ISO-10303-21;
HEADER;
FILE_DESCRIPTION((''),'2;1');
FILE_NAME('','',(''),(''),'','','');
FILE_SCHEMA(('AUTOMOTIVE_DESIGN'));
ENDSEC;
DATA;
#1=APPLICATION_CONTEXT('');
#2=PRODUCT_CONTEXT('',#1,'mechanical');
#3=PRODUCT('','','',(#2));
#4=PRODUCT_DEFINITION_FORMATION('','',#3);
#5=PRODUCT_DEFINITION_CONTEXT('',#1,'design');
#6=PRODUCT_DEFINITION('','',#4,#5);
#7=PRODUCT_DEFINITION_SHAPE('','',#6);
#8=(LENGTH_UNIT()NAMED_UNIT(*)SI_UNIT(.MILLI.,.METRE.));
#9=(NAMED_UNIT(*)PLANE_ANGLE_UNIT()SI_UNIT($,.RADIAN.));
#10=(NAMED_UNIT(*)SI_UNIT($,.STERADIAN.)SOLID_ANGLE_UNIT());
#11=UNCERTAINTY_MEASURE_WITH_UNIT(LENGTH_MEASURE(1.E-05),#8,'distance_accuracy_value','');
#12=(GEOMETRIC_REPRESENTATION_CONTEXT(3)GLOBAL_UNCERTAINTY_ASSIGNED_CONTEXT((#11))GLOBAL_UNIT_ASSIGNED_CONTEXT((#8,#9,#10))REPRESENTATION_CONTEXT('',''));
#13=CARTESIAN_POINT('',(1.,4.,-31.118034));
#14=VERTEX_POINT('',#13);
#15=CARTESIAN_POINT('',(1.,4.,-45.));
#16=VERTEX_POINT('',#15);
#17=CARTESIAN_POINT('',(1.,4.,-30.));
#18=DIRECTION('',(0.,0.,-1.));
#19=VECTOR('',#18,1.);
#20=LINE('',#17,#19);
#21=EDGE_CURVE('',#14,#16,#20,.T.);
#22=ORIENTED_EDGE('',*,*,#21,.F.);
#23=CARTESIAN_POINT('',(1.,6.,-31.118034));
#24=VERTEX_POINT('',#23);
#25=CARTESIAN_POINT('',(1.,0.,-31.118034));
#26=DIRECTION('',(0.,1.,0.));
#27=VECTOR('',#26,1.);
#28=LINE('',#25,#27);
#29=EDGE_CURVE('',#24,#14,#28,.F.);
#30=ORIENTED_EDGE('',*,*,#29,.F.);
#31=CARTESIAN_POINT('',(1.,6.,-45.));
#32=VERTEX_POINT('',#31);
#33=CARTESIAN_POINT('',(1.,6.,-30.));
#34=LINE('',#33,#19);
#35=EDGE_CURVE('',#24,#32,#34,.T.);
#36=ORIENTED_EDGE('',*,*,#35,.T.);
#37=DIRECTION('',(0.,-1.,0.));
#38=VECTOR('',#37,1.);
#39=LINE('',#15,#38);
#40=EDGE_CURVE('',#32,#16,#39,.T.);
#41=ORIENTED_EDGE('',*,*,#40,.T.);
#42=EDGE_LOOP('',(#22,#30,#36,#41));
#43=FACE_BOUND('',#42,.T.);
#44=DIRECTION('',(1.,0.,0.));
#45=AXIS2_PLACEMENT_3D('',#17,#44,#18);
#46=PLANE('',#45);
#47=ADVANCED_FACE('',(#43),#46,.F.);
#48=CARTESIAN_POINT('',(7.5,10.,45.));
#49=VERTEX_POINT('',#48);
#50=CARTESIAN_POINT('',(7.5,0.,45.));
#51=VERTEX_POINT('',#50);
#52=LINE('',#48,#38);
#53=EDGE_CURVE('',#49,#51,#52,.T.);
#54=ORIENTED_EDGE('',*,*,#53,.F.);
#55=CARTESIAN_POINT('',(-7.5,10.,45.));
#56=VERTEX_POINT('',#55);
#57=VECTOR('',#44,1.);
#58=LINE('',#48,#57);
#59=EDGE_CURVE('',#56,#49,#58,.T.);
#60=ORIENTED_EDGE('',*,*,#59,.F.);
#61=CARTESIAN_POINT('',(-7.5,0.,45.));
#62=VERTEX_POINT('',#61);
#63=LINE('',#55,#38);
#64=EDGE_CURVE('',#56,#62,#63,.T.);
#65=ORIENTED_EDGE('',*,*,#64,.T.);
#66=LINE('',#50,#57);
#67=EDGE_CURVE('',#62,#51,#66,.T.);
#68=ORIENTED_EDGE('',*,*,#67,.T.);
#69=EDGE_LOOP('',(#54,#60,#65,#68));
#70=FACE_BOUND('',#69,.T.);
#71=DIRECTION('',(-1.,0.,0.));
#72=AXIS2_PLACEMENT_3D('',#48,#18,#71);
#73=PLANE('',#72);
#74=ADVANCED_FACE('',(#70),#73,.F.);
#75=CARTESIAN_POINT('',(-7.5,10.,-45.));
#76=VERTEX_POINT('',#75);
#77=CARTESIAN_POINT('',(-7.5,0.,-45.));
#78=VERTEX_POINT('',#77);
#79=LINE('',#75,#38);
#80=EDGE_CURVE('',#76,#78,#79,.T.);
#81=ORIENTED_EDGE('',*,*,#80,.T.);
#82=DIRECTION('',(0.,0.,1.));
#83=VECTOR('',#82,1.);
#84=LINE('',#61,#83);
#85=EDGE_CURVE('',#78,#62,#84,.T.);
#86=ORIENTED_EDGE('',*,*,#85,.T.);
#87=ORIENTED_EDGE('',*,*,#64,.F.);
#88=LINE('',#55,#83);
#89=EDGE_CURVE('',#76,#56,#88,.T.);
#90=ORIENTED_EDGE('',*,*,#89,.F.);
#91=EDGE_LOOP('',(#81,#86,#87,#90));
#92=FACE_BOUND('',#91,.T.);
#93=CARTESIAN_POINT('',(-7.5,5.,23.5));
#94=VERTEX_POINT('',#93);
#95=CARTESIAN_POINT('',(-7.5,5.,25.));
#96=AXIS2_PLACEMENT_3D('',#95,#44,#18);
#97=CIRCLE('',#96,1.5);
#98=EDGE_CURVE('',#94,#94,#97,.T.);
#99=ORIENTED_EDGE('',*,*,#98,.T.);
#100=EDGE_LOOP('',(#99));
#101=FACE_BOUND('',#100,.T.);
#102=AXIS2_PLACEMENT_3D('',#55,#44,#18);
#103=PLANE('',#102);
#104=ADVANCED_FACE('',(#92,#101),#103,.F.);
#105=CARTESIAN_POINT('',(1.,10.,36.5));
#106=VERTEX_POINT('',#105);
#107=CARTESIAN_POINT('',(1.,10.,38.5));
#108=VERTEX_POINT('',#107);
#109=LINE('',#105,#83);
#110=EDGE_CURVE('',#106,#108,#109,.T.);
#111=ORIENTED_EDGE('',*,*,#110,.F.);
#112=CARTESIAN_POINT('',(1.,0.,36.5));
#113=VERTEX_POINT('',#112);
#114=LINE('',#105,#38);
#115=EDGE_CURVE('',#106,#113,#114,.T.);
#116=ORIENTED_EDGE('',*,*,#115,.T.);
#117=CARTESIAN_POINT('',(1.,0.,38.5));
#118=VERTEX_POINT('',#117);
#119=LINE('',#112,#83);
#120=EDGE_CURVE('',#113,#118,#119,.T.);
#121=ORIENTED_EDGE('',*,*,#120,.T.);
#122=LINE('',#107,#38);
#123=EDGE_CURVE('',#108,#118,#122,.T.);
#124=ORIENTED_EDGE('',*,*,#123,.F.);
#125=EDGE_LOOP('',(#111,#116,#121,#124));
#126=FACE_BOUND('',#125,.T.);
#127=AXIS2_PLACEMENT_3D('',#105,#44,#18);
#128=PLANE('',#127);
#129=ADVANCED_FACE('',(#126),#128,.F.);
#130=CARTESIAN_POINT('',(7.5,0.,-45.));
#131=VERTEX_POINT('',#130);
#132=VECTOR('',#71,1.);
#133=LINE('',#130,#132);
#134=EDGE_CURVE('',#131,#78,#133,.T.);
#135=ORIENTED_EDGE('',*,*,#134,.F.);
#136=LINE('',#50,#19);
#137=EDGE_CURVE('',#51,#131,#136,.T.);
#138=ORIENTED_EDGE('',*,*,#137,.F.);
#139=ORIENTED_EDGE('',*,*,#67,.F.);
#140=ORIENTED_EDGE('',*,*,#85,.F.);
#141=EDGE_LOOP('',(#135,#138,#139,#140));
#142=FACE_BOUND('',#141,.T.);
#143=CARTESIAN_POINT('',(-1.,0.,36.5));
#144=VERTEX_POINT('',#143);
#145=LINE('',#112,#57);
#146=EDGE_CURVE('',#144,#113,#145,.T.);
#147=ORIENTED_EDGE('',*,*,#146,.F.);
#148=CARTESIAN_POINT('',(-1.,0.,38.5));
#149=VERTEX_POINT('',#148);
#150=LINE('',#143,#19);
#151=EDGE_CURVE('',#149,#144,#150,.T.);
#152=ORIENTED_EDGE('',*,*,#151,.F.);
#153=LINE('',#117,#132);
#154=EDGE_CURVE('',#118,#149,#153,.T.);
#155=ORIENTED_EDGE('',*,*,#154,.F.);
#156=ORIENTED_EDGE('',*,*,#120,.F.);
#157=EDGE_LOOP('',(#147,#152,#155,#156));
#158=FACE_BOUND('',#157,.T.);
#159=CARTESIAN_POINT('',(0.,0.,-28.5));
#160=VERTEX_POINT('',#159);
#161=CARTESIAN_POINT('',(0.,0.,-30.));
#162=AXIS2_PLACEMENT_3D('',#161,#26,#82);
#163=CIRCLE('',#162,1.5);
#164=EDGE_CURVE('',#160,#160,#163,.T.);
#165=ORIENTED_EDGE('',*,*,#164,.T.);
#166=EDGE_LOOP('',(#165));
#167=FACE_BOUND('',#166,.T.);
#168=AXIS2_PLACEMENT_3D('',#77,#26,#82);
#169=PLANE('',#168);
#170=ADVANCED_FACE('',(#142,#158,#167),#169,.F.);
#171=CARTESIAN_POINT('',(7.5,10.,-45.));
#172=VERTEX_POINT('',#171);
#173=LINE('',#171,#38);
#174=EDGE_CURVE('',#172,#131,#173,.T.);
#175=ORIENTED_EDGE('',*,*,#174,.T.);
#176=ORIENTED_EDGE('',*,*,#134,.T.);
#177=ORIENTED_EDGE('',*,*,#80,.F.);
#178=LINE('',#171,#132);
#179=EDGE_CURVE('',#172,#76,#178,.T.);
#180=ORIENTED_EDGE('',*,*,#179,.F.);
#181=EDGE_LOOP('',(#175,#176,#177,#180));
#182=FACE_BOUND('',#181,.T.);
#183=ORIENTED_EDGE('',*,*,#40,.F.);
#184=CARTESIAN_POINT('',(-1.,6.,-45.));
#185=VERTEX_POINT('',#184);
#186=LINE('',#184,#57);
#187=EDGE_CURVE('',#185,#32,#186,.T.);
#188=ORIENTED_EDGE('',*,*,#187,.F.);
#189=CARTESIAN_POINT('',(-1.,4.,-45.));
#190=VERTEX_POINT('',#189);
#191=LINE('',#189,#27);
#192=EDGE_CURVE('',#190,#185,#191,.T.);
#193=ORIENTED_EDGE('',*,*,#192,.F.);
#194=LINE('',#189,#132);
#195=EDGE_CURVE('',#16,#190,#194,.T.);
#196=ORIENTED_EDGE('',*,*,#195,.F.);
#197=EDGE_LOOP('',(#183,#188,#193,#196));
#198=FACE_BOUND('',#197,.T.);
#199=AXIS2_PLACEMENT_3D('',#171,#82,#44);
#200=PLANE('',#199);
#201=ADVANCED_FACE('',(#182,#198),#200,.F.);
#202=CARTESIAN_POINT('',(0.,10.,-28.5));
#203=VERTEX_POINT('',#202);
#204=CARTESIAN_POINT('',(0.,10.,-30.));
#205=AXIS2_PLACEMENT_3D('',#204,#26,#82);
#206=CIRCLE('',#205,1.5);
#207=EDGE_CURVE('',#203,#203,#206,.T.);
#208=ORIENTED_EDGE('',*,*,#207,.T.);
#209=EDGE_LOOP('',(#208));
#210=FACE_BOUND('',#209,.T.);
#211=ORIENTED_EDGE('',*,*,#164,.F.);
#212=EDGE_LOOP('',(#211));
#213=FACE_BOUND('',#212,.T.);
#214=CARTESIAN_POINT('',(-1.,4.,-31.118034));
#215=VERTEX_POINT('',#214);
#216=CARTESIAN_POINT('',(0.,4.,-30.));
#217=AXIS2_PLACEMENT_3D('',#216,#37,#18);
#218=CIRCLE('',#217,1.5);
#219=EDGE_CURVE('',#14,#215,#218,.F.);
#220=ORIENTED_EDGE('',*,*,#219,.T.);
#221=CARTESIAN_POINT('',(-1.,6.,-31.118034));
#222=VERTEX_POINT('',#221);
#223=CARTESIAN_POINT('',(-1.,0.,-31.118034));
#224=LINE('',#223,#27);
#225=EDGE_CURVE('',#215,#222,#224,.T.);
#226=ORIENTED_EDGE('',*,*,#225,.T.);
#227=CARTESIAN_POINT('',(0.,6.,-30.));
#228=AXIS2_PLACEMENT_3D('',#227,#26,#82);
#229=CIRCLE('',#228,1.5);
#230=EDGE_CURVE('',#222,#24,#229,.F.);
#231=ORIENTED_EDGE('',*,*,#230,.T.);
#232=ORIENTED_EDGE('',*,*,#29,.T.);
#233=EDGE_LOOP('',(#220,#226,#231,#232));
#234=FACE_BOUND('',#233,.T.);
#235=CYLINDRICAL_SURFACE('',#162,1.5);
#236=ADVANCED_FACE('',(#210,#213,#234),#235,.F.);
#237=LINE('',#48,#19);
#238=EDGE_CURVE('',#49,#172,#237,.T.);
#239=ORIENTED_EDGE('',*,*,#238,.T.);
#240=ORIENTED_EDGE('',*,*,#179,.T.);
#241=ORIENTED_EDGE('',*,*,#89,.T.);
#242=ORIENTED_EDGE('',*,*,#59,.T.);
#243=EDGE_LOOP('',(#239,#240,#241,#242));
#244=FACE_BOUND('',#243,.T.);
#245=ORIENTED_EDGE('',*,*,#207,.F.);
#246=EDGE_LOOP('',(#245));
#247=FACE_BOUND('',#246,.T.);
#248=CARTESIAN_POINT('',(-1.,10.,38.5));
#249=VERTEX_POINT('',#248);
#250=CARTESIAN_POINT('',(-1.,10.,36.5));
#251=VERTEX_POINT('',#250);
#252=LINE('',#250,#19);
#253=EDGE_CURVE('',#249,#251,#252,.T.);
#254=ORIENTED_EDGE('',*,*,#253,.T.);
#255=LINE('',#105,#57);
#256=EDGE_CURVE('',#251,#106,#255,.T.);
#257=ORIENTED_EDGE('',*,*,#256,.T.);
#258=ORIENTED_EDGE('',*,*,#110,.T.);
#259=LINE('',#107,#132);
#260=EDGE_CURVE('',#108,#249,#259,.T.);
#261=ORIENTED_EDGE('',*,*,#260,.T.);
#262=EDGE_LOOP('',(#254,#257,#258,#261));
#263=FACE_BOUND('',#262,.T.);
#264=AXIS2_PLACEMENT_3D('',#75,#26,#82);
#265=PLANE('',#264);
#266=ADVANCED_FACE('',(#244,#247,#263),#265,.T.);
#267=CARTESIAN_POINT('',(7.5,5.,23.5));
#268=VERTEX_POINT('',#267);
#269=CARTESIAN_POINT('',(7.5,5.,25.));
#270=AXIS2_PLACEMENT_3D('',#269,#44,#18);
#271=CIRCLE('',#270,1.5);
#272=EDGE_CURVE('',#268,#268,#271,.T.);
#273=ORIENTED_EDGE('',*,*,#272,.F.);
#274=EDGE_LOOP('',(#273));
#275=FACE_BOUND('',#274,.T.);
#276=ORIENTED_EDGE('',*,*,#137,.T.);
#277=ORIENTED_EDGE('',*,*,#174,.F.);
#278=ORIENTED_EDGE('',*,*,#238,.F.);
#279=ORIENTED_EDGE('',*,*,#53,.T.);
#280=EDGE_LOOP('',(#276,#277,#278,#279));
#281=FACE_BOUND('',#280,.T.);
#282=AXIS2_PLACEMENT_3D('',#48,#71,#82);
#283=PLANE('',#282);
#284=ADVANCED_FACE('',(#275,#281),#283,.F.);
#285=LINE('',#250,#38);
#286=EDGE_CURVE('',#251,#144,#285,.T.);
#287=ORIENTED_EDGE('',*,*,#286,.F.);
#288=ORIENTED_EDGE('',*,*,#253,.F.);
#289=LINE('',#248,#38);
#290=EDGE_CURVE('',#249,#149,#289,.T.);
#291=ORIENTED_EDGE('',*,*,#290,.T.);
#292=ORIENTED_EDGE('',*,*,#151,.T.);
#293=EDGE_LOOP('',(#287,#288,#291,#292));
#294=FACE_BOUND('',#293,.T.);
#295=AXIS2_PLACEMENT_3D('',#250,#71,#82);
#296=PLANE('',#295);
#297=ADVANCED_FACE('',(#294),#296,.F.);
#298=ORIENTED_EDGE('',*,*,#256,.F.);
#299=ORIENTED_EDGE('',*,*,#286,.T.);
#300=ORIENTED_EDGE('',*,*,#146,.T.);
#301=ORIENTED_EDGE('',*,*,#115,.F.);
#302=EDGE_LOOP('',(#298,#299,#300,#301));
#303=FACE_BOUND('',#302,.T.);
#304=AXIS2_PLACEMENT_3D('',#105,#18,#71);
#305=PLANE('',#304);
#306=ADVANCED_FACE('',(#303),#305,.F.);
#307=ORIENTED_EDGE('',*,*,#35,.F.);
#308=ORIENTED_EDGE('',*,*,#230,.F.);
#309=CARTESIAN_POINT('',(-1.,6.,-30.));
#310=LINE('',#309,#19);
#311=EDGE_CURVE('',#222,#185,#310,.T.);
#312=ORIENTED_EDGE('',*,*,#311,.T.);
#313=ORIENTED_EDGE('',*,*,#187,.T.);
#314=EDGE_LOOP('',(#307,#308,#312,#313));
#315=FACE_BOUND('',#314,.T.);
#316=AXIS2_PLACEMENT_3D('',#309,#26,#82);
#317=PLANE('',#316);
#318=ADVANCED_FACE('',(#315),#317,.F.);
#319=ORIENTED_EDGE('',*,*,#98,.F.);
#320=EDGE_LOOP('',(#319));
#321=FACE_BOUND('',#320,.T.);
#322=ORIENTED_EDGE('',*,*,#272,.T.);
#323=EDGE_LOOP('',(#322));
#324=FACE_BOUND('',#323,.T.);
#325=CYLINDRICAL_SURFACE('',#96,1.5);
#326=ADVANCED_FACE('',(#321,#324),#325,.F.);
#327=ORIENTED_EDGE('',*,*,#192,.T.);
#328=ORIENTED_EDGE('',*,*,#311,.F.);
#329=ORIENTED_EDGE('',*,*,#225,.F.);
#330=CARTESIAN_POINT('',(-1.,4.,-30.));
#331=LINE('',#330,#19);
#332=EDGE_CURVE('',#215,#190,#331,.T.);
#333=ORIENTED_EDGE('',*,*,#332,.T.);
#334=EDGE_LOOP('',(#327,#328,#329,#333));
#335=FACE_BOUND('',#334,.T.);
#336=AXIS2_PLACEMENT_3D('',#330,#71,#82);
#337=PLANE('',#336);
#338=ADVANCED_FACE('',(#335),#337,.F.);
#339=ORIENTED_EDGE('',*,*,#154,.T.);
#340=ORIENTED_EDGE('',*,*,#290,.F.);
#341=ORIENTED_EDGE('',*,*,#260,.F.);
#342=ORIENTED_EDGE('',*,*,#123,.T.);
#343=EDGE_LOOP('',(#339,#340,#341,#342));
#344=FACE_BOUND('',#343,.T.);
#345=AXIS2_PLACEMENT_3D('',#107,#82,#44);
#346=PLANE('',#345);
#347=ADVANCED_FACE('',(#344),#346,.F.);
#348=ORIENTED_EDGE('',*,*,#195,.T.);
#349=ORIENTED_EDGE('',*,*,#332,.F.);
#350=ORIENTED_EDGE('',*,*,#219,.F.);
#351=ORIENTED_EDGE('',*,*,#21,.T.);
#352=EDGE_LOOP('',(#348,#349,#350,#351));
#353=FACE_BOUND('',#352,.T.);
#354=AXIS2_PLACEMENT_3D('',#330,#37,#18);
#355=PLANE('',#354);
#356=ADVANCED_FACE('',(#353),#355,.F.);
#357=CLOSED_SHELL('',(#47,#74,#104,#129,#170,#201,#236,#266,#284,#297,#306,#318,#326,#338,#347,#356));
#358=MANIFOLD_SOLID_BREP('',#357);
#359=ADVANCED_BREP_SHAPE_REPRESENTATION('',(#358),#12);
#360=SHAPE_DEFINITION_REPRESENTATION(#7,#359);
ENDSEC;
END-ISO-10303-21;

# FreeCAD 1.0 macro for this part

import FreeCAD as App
import Part
import Sketcher

V = App.Vector
Q = App.Units.Quantity

doc = App.newDocument("Part")
params = doc.addObject("Spreadsheet::Sheet", "Params")
for row, (alias, value) in enumerate([
    ("sketch1_width", "15 mm"),
    ("sketch1_height", "90 mm"),
    ("pad1_length", "10 mm"),
    ("sketch2_diameter", "3 mm"),
    ("sketch3_width", "2 mm"),
    ("sketch4_diameter", "3 mm"),
    ("sketch5_width", "2 mm"),
    ("pocket4_length", "15 mm"),
], start=1):
    params.set(f"A{row}", alias)
    params.set(f"B{row}", "=" + value)
    params.setAlias(f"B{row}", alias)

body = doc.addObject("PartDesign::Body", "Body")

sketch1 = body.newObject("Sketcher::SketchObject", "Sketch")
sketch1.AttachmentSupport = (doc.getObject("XZ_Plane"), [""])
sketch1.MapMode = "FlatFace"
sketch1.addGeometry(Part.LineSegment(V(-8, -45, 0), V(-8, 45, 0)), False)
sketch1.addGeometry(Part.LineSegment(V(-8, 45, 0), V(8, 45, 0)), False)
sketch1.addGeometry(Part.LineSegment(V(8, 45, 0), V(8, -45, 0)), False)
sketch1.addGeometry(Part.LineSegment(V(8, -45, 0), V(-8, -45, 0)), False)
sketch1.addConstraint(Sketcher.Constraint("Coincident", 0, 2, 1, 1))
sketch1.addConstraint(Sketcher.Constraint("Coincident", 1, 2, 2, 1))
sketch1.addConstraint(Sketcher.Constraint("Coincident", 2, 2, 3, 1))
sketch1.addConstraint(Sketcher.Constraint("Coincident", 3, 2, 0, 1))
sketch1.addConstraint(Sketcher.Constraint("Vertical", 0))
sketch1.addConstraint(Sketcher.Constraint("Horizontal", 1))
sketch1.addConstraint(Sketcher.Constraint("Vertical", 2))
sketch1.addConstraint(Sketcher.Constraint("Horizontal", 3))
sketch1.addConstraint(Sketcher.Constraint("Symmetric", 0, 2, 2, 2, -1, 1))
sketch1.addConstraint(Sketcher.Constraint("DistanceX", 1, 1, 1, 2, Q("15 mm")))
sketch1.addConstraint(Sketcher.Constraint("DistanceY", 0, 1, 0, 2, Q("90 mm")))
sketch1.setExpression("Constraints[9]", "Params.sketch1_width")
sketch1.setExpression("Constraints[10]", "Params.sketch1_height")
pad1 = body.newObject("PartDesign::Pad", "Pad")
pad1.Profile = sketch1
pad1.setExpression("Length", "Params.pad1_length")
pad1.Reversed = True

sketch2 = body.newObject("Sketcher::SketchObject", "Sketch001")
sketch2.AttachmentSupport = (doc.getObject("YZ_Plane"), [""])
sketch2.MapMode = "FlatFace"
sketch2.AttachmentOffset = App.Placement(V(0, 0, 7.5), App.Rotation())
sketch2.addGeometry(Part.Circle(V(5, 25, 0), V(0, 0, 1), 1.5), False)
sketch2.addConstraint(Sketcher.Constraint("Diameter", 0, Q("3 mm")))
sketch2.addConstraint(Sketcher.Constraint("DistanceX", -1, 1, 0, 3, Q("5 mm")))
sketch2.addConstraint(Sketcher.Constraint("DistanceY", -1, 1, 0, 3, Q("25 mm")))
sketch2.setExpression("Constraints[0]", "Params.sketch2_diameter")
pocket1 = body.newObject("PartDesign::Pocket", "Pocket")
pocket1.Profile = sketch2
pocket1.Type = "ThroughAll"

sketch3 = body.newObject("Sketcher::SketchObject", "Sketch002")
sketch3.AttachmentSupport = (doc.getObject("XZ_Plane"), [""])
sketch3.MapMode = "FlatFace"
sketch3.addGeometry(Part.LineSegment(V(-1, 38.5, 0), V(-1, 36.5, 0)), False)
sketch3.addGeometry(Part.LineSegment(V(-1, 36.5, 0), V(1, 36.5, 0)), False)
sketch3.addGeometry(Part.LineSegment(V(1, 36.5, 0), V(1, 38.5, 0)), False)
sketch3.addGeometry(Part.LineSegment(V(1, 38.5, 0), V(-1, 38.5, 0)), False)
sketch3.addConstraint(Sketcher.Constraint("Coincident", 0, 2, 1, 1))
sketch3.addConstraint(Sketcher.Constraint("Coincident", 1, 2, 2, 1))
sketch3.addConstraint(Sketcher.Constraint("Coincident", 2, 2, 3, 1))
sketch3.addConstraint(Sketcher.Constraint("Coincident", 3, 2, 0, 1))
sketch3.addConstraint(Sketcher.Constraint("Vertical", 0))
sketch3.addConstraint(Sketcher.Constraint("Horizontal", 1))
sketch3.addConstraint(Sketcher.Constraint("Vertical", 2))
sketch3.addConstraint(Sketcher.Constraint("Horizontal", 3))
sketch3.addConstraint(Sketcher.Constraint("Equal", 3, 0))
sketch3.addConstraint(Sketcher.Constraint("DistanceX", 1, 1, 1, 2, Q("2 mm")))
sketch3.addConstraint(Sketcher.Constraint("DistanceX", 0, 2, -1, 1, Q("1 mm")))
sketch3.addConstraint(Sketcher.Constraint("DistanceY", -1, 1, 0, 2, Q("36.5 mm")))
sketch3.setExpression("Constraints[9]", "Params.sketch3_width")
pocket2 = body.newObject("PartDesign::Pocket", "Pocket001")
pocket2.Profile = sketch3
pocket2.Type = "ThroughAll"

sketch4 = body.newObject("Sketcher::SketchObject", "Sketch003")
sketch4.AttachmentSupport = (doc.getObject("XZ_Plane"), [""])
sketch4.MapMode = "FlatFace"
sketch4.AttachmentOffset = App.Placement(V(0, 0, -10), App.Rotation())
sketch4.addGeometry(Part.Circle(V(0, -30, 0), V(0, 0, 1), 1.5), False)
sketch4.addConstraint(Sketcher.Constraint("PointOnObject", 0, 3, -2))
sketch4.addConstraint(Sketcher.Constraint("Diameter", 0, Q("3 mm")))
sketch4.addConstraint(Sketcher.Constraint("DistanceY", 0, 3, -1, 1, Q("30 mm")))
sketch4.setExpression("Constraints[1]", "Params.sketch4_diameter")
pocket3 = body.newObject("PartDesign::Pocket", "Pocket002")
pocket3.Profile = sketch4
pocket3.Type = "ThroughAll"
pocket3.Reversed = True

sketch5 = body.newObject("Sketcher::SketchObject", "Sketch004")
sketch5.AttachmentSupport = (doc.getObject("XY_Plane"), [""])
sketch5.MapMode = "FlatFace"
sketch5.AttachmentOffset = App.Placement(V(0, 0, -45), App.Rotation())
sketch5.addGeometry(Part.LineSegment(V(1, 6, 0), V(1, 4, 0)), False)
sketch5.addGeometry(Part.LineSegment(V(1, 4, 0), V(-1, 4, 0)), False)
sketch5.addGeometry(Part.LineSegment(V(-1, 4, 0), V(-1, 6, 0)), False)
sketch5.addGeometry(Part.LineSegment(V(-1, 6, 0), V(1, 6, 0)), False)
sketch5.addConstraint(Sketcher.Constraint("Coincident", 0, 2, 1, 1))
sketch5.addConstraint(Sketcher.Constraint("Coincident", 1, 2, 2, 1))
sketch5.addConstraint(Sketcher.Constraint("Coincident", 2, 2, 3, 1))
sketch5.addConstraint(Sketcher.Constraint("Coincident", 3, 2, 0, 1))
sketch5.addConstraint(Sketcher.Constraint("Vertical", 0))
sketch5.addConstraint(Sketcher.Constraint("Horizontal", 1))
sketch5.addConstraint(Sketcher.Constraint("Vertical", 2))
sketch5.addConstraint(Sketcher.Constraint("Horizontal", 3))
sketch5.addConstraint(Sketcher.Constraint("Equal", 3, 0))
sketch5.addConstraint(Sketcher.Constraint("DistanceX", 1, 2, 1, 1, Q("2 mm")))
sketch5.addConstraint(Sketcher.Constraint("DistanceX", -1, 1, 0, 2, Q("1 mm")))
sketch5.addConstraint(Sketcher.Constraint("DistanceY", -1, 1, 0, 2, Q("4 mm")))
sketch5.setExpression("Constraints[9]", "Params.sketch5_width")
pocket4 = body.newObject("PartDesign::Pocket", "Pocket003")
pocket4.Profile = sketch5
pocket4.setExpression("Length", "Params.pocket4_length")
pocket4.Reversed = True

doc.recompute()
